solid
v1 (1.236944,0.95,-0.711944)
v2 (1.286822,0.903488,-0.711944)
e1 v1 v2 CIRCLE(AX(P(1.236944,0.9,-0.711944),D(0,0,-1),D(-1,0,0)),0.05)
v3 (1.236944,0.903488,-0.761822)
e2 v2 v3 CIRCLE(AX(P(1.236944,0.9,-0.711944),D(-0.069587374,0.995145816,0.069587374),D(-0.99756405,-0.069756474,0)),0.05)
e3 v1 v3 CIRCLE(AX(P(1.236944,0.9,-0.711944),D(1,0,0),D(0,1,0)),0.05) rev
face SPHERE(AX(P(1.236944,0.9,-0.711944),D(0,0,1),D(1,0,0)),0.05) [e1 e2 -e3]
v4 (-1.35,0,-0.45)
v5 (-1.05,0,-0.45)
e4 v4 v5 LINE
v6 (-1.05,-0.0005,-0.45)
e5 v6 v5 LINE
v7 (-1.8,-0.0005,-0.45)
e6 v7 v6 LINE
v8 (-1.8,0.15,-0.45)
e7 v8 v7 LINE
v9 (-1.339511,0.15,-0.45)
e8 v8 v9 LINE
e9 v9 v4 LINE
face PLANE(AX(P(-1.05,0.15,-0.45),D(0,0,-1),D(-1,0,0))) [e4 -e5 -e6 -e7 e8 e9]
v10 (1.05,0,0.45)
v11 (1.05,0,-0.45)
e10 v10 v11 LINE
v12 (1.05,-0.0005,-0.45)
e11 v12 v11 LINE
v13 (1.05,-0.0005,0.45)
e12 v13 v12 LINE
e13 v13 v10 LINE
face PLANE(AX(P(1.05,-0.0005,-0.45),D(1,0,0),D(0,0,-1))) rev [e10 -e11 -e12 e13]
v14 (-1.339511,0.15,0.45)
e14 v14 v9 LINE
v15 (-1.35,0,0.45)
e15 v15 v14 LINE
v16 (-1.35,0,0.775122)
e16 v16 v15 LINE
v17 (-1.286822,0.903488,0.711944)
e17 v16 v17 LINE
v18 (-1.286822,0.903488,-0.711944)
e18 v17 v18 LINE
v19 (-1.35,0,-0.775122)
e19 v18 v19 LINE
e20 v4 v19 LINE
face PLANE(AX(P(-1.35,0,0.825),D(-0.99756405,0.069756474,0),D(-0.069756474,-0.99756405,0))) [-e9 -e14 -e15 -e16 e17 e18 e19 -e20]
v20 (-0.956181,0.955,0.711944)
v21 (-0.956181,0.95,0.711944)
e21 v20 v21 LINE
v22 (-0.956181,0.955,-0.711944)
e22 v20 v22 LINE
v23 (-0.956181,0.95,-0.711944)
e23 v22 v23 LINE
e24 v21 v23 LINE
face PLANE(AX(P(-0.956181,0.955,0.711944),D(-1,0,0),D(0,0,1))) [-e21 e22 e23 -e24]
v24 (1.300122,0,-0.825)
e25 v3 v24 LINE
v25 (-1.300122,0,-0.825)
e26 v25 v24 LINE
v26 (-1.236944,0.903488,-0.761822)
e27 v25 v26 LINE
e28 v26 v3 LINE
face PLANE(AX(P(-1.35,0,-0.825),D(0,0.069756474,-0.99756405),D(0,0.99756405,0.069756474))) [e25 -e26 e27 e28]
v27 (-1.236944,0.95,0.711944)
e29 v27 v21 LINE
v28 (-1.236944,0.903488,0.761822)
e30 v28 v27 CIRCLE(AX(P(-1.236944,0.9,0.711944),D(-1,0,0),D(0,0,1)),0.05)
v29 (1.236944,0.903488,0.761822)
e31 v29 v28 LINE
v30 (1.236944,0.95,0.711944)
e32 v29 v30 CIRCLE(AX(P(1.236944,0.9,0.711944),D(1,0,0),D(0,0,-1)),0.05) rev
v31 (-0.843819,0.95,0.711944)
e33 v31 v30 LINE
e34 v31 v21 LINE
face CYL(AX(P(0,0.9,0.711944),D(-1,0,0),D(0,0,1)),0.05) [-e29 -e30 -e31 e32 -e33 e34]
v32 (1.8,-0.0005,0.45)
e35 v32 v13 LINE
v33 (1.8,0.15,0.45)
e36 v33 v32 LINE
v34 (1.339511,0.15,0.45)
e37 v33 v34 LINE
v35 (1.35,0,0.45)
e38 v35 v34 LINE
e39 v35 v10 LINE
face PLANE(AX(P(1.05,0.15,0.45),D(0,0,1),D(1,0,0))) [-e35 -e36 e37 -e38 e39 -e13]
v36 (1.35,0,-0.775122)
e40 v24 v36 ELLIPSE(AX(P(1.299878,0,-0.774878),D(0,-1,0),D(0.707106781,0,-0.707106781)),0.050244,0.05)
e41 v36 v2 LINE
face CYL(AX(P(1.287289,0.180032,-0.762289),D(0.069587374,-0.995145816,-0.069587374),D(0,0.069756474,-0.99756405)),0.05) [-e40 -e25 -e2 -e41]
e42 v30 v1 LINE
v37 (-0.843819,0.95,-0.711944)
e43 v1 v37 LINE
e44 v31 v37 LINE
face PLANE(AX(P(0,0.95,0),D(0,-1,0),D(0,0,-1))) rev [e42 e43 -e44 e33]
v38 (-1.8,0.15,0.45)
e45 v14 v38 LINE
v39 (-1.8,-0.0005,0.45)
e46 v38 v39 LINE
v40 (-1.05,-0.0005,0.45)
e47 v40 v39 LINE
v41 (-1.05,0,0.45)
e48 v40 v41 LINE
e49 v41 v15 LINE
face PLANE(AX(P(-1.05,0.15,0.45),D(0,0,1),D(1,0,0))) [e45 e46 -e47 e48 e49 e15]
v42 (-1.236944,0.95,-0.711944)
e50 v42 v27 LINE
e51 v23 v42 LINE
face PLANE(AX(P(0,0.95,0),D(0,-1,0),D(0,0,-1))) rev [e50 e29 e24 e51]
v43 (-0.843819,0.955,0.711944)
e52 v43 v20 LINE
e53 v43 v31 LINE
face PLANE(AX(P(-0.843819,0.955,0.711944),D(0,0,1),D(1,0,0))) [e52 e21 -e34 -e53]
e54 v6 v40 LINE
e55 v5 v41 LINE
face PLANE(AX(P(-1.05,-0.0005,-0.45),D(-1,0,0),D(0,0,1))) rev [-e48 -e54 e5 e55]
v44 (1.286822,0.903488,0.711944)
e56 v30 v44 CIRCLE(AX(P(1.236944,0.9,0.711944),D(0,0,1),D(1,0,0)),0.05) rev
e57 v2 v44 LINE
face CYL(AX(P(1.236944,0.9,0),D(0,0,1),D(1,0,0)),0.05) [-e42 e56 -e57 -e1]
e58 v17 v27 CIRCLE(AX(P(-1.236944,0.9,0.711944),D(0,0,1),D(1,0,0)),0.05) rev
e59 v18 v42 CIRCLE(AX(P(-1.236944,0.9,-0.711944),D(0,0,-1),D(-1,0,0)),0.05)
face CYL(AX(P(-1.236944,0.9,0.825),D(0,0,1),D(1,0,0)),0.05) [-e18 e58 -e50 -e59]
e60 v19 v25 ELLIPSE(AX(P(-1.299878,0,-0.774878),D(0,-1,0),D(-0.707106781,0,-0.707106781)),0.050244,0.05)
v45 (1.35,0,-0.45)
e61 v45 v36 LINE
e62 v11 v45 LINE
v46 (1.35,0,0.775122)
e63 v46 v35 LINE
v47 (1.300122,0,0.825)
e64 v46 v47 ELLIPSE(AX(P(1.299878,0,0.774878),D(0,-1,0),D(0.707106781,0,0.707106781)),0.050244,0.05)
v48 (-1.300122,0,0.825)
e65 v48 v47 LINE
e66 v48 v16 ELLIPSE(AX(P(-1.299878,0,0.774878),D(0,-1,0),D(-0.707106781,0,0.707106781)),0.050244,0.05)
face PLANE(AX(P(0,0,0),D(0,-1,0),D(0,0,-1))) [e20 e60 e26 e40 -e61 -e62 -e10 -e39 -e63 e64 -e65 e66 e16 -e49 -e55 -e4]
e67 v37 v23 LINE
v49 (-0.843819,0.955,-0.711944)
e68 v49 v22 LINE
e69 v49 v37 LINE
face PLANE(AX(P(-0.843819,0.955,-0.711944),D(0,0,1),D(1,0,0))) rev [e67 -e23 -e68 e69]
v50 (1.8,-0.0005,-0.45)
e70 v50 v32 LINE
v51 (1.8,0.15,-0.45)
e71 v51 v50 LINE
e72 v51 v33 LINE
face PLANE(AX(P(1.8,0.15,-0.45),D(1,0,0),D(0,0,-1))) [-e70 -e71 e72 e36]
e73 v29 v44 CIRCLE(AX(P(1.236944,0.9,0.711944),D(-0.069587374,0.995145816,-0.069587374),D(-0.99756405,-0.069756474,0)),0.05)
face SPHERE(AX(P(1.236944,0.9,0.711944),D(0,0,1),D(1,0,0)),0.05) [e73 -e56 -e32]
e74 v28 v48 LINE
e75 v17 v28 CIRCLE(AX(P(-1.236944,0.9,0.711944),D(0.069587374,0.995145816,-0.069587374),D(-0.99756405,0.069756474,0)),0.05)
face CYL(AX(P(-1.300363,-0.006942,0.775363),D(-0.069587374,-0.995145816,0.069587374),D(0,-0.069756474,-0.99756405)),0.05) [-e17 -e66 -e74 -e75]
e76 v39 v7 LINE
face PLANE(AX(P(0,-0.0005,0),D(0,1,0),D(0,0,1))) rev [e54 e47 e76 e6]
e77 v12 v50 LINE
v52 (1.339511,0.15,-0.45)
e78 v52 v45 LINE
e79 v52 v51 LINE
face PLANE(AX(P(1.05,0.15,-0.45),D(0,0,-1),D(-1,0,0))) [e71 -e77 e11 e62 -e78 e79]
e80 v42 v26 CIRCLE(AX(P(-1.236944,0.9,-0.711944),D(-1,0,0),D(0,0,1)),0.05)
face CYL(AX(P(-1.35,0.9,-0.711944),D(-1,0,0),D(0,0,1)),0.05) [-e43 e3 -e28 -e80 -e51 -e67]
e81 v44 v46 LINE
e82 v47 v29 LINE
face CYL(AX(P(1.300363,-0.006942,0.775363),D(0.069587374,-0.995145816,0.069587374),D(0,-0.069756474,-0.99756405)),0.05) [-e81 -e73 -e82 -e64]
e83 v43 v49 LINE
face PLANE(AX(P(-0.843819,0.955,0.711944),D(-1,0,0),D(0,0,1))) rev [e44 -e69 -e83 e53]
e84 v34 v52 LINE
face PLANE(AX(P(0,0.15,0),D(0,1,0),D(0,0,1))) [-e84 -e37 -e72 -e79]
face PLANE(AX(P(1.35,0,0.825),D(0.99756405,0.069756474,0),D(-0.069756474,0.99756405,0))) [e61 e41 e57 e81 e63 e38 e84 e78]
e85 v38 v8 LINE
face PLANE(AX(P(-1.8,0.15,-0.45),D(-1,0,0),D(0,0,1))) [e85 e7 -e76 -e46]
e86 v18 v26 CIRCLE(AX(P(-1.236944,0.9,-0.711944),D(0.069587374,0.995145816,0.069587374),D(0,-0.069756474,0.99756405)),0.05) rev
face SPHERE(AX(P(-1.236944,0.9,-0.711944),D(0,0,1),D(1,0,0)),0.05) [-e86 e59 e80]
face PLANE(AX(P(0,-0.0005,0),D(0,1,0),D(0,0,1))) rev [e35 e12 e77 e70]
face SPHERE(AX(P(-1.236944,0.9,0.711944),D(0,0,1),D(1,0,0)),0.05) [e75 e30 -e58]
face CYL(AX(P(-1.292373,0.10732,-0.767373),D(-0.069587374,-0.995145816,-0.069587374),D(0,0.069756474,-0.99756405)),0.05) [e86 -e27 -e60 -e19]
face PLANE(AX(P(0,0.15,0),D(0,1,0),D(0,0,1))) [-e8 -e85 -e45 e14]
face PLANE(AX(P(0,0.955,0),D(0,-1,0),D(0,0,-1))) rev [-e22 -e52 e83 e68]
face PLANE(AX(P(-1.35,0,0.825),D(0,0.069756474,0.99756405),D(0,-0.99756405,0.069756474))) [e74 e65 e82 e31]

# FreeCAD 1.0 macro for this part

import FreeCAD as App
import Part
import Sketcher
from FreeCAD import Vector
Q = App.Units.Quantity


def edges_at(feature, points):
    """Names of the edges that pass closest to the given points."""
    edges = feature.Shape.Edges
    near = lambda p: min(range(len(edges)), key=lambda i: edges[i].distToShape(Part.Vertex(*p))[0])
    return sorted({f"Edge{near(p) + 1}" for p in points})


def add_polygon(sketch, points):
    """Adds a closed chain of lines whose ends are joined by coincident constraints."""
    first, n = sketch.GeometryCount, len(points)
    for a, b in zip(points, points[1:] + points[:1]):
        sketch.addGeometry(Part.LineSegment(App.Vector(*a, 0), App.Vector(*b, 0)), False)
    for i in range(n):
        sketch.addConstraint(Sketcher.Constraint("Coincident", first + i, 2, first + (i + 1) % n, 1))

doc = App.newDocument("Part")
body = doc.addObject("PartDesign::Body", "Body")

# Sketch on XZ plane
sketch1 = doc.addObject("Sketcher::SketchObject", "Sketch")
body.addObject(sketch1)
sketch1.AttachmentSupport = (doc.XZ_Plane, [""])
sketch1.MapMode = "FlatFace"
add_polygon(sketch1, [(-1.4, -0.8), (-1.4, 0.8), (1.4, 0.8), (1.4, -0.8)])  # lines 0-3
sketch1.addConstraint([
    Sketcher.Constraint("Vertical", 0),
    Sketcher.Constraint("Horizontal", 1),
    Sketcher.Constraint("Vertical", 2),
    Sketcher.Constraint("Horizontal", 3),
    Sketcher.Constraint("Symmetric", 0, 2, 2, 2, -1, 1),
    Sketcher.Constraint("DistanceX", 1, 1, 1, 2, Q("2.7 mm")),
    Sketcher.Constraint("DistanceY", 0, 1, 0, 2, Q("1.65 mm")),
])
pad1 = doc.addObject("PartDesign::Pad", "Pad")
body.addObject(pad1)
pad1.Profile = sketch1
pad1.Length = 0.95
pad1.Reversed = True
pad1.TaperAngle = -4
doc.recompute()

fillet = doc.addObject("PartDesign::Fillet", "Fillet")
body.addObject(fillet)
fillet.Base = (pad1, edges_at(pad1, [
    (1.284, 0.95, 0),
    (0, 0.95, 0.759),
    (-1.284, 0.95, 0),
    (-1.317, 0.475, 0.792),
    (1.317, 0.475, 0.792),
    (1.317, 0.475, -0.792),
    (-1.317, 0.475, -0.792),
    (0, 0.95, -0.759),
]))
fillet.Radius = 0.05

# Sketch on XZ plane
sketch2 = doc.addObject("Sketcher::SketchObject", "Sketch001")
body.addObject(sketch2)
sketch2.AttachmentSupport = (doc.XZ_Plane, [""])
sketch2.MapMode = "FlatFace"
add_polygon(sketch2, [(1.1, 0.5), (1.1, -0.5), (1.8, -0.5), (1.8, 0.5)])  # lines 0-3
add_polygon(sketch2, [(-1.8, 0.5), (-1.8, -0.5), (-1.1, -0.5), (-1.1, 0.5)])  # lines 4-7
sketch2.addConstraint([
    Sketcher.Constraint("Vertical", 0),
    Sketcher.Constraint("Horizontal", 1),
    Sketcher.Constraint("Vertical", 2),
    Sketcher.Constraint("Horizontal", 3),
    Sketcher.Constraint("Vertical", 4),
    Sketcher.Constraint("Horizontal", 5),
    Sketcher.Constraint("Vertical", 6),
    Sketcher.Constraint("Horizontal", 7),
    Sketcher.Constraint("Symmetric", 2, 2, 4, 2, -1, 1),
    Sketcher.Constraint("Symmetric", 0, 2, 6, 2, -1, 1),
    Sketcher.Constraint("Horizontal", 1, 2, 4, 2),
    Sketcher.Constraint("DistanceY", 0, 2, 0, 1, Q("0.9 mm")),
    Sketcher.Constraint("DistanceX", 1, 1, 1, 2, Q("0.75 mm")),
    Sketcher.Constraint("DistanceX", -1, 1, 1, 2, Q("1.8 mm")),
])
pad2 = doc.addObject("PartDesign::Pad", "Pad001")
body.addObject(pad2)
pad2.Profile = sketch2
pad2.Length = 0.15
pad2.Reversed = True

# Sketch on XZ plane
sketch3 = doc.addObject("Sketcher::SketchObject", "Sketch002")
body.addObject(sketch3)
sketch3.AttachmentSupport = (doc.XZ_Plane, [""])
sketch3.MapMode = "FlatFace"
sketch3.AttachmentOffset = App.Placement(Vector(0, 0, -0.95), App.Rotation())
add_polygon(sketch3, [(-0.96, -0.71), (-0.96, 0.71), (-0.84, 0.71), (-0.84, -0.71)])  # lines 0-3
sketch3.addConstraint([
    Sketcher.Constraint("Vertical", 0),
    Sketcher.Constraint("Horizontal", 1),
    Sketcher.Constraint("Vertical", 2),
    Sketcher.Constraint("Horizontal", 3),
    Sketcher.Constraint("DistanceX", 1, 1, 1, 2, Q("0.112363 mm")),
    Sketcher.Constraint("DistanceY", 0, 1, 0, 2, Q("1.423888 mm")),
    Sketcher.Constraint("DistanceX", 0, 2, -1, 1, Q("0.956181 mm")),
    Sketcher.Constraint("DistanceY", -1, 1, 0, 2, Q("0.711944 mm")),
])
pad3 = doc.addObject("PartDesign::Pad", "Pad002")
body.addObject(pad3)
pad3.Profile = sketch3
pad3.Length = 0.005
pad3.Reversed = True

# Sketch on XZ plane
sketch4 = doc.addObject("Sketcher::SketchObject", "Sketch003")
body.addObject(sketch4)
sketch4.AttachmentSupport = (doc.XZ_Plane, [""])
sketch4.MapMode = "FlatFace"
add_polygon(sketch4, [(1.1, 0.5), (1.1, -0.5), (1.8, -0.5), (1.8, 0.5)])  # lines 0-3
add_polygon(sketch4, [(-1.8, 0.5), (-1.8, -0.5), (-1.1, -0.5), (-1.1, 0.5)])  # lines 4-7
sketch4.addConstraint([
    Sketcher.Constraint("Vertical", 0),
    Sketcher.Constraint("Horizontal", 1),
    Sketcher.Constraint("Vertical", 2),
    Sketcher.Constraint("Horizontal", 3),
    Sketcher.Constraint("Vertical", 4),
    Sketcher.Constraint("Horizontal", 5),
    Sketcher.Constraint("Vertical", 6),
    Sketcher.Constraint("Horizontal", 7),
    Sketcher.Constraint("Symmetric", 2, 2, 4, 2, -1, 1),
    Sketcher.Constraint("Symmetric", 0, 2, 6, 2, -1, 1),
    Sketcher.Constraint("Horizontal", 1, 2, 4, 2),
    Sketcher.Constraint("DistanceY", 0, 2, 0, 1, Q("0.9 mm")),
    Sketcher.Constraint("DistanceX", 1, 1, 1, 2, Q("0.75 mm")),
    Sketcher.Constraint("DistanceX", -1, 1, 1, 2, Q("1.8 mm")),
])
pad4 = doc.addObject("PartDesign::Pad", "Pad003")
body.addObject(pad4)
pad4.Profile = sketch4
pad4.Length = 0.0005

doc.recompute()
